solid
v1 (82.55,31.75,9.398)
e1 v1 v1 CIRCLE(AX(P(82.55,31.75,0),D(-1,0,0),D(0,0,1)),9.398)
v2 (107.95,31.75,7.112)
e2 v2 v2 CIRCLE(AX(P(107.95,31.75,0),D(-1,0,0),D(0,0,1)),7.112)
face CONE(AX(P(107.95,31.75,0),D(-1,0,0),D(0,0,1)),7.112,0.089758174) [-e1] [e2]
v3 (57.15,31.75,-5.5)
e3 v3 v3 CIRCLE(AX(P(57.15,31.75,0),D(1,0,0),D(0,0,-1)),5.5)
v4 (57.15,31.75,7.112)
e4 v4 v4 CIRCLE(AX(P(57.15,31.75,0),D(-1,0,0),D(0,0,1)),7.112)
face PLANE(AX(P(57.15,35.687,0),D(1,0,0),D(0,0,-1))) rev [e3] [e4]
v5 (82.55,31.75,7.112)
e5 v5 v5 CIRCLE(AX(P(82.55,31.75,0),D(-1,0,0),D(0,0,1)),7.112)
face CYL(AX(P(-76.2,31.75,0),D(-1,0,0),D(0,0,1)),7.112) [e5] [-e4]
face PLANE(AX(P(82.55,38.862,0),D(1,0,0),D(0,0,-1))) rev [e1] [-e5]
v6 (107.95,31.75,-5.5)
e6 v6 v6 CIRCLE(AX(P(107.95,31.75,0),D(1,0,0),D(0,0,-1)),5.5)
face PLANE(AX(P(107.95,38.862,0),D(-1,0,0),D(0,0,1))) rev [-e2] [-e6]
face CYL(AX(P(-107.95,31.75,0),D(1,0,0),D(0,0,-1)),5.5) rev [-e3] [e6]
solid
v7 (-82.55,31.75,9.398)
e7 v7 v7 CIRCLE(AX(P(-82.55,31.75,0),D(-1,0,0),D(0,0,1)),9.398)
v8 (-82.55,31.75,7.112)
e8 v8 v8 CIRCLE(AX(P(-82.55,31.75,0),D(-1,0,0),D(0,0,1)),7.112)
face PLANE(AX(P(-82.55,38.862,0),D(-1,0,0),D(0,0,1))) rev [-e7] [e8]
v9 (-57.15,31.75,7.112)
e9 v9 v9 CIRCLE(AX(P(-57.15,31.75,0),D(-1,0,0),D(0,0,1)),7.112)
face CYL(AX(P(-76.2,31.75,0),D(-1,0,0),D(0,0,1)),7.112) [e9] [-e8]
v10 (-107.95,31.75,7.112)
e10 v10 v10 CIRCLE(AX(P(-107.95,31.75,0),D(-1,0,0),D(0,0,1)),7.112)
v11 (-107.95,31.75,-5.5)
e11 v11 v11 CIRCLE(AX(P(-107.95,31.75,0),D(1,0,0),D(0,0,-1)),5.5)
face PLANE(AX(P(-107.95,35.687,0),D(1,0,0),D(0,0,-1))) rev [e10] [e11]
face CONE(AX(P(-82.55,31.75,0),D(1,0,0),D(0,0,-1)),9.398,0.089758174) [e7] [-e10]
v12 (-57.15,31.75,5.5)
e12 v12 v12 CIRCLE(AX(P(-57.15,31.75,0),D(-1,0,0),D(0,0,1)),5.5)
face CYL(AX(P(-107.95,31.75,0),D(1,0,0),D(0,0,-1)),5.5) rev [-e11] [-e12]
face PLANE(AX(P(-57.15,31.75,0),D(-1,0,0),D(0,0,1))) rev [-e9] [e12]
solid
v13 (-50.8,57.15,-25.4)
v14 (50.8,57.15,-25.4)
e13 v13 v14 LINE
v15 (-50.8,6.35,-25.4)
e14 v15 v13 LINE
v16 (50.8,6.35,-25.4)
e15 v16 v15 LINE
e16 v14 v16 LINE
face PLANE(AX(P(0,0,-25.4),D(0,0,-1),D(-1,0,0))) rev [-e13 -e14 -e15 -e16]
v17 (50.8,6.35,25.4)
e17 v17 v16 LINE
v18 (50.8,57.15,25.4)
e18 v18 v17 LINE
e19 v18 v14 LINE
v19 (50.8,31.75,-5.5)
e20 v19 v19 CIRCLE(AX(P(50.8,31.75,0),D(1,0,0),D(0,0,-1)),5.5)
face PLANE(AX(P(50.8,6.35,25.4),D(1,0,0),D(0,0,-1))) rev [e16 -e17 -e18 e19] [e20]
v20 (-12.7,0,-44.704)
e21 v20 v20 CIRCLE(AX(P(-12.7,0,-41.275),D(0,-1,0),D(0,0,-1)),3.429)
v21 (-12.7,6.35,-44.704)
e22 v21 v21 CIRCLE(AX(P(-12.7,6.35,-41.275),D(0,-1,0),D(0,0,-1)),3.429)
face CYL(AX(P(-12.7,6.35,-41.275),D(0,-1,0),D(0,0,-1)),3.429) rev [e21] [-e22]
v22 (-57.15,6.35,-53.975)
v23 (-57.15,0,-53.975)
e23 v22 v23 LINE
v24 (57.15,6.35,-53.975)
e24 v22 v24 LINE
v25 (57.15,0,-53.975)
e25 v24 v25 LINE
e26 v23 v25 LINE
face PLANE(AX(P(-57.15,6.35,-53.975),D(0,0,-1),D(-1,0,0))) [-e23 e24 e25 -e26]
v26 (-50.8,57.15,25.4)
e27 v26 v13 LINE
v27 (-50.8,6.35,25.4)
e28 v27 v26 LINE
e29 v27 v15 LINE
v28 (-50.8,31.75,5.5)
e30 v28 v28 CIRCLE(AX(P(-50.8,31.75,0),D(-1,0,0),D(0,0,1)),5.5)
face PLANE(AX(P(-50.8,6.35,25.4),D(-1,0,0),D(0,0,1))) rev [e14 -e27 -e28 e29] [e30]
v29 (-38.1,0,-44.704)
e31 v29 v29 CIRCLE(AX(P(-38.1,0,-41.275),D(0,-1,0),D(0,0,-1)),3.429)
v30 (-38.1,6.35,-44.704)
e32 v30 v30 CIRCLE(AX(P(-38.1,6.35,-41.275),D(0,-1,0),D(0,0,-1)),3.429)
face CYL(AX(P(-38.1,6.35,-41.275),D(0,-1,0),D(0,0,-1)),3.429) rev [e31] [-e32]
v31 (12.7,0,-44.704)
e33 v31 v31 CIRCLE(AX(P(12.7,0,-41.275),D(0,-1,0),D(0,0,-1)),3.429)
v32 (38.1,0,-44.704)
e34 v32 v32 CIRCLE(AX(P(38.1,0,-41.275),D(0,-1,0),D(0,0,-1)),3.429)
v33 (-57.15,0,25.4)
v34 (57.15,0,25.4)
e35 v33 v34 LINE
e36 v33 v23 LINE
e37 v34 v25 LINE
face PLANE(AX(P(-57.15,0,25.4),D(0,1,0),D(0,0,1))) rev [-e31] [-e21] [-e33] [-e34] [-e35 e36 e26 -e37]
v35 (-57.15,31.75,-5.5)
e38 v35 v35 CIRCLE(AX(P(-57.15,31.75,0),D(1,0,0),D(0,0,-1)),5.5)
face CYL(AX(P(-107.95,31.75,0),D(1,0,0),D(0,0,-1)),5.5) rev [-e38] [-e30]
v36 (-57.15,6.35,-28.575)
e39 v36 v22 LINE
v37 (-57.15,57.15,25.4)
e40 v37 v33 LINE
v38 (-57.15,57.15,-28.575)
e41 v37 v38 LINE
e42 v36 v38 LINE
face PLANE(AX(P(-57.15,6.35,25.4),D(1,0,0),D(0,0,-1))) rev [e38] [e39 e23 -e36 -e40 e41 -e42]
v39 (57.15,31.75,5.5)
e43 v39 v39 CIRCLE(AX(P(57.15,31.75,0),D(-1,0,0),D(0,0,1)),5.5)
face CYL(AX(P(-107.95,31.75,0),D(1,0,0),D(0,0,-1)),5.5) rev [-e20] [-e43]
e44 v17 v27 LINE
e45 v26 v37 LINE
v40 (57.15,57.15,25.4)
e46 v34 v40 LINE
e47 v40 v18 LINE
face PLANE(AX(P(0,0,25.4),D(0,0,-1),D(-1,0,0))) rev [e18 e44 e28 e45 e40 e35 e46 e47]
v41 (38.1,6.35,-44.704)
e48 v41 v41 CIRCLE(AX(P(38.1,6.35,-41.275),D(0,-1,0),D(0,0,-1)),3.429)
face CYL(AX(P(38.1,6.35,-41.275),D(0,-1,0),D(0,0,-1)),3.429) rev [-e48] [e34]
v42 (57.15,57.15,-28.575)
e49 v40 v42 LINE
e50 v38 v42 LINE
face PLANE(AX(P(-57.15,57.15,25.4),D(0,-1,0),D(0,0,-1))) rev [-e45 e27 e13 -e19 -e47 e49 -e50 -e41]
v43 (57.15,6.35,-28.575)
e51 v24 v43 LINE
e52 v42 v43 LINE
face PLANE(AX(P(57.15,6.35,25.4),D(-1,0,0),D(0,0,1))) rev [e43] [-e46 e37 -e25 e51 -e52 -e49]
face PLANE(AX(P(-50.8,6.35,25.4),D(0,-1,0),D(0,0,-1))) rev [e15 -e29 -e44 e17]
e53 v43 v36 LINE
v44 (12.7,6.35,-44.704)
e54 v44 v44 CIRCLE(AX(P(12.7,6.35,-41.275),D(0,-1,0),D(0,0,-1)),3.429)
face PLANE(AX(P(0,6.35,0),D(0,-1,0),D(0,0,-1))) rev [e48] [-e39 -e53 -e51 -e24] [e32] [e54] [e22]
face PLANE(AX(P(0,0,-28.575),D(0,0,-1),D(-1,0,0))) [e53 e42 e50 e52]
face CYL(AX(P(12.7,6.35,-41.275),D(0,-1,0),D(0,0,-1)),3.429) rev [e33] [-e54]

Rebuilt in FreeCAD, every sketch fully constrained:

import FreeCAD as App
import Part
import Sketcher
from FreeCAD import Vector
Q = App.Units.Quantity

doc = App.newDocument("Part")
body = doc.addObject("PartDesign::Body", "Body")

# Sketch on XY plane
sketch1 = body.newObject("Sketcher::SketchObject", "Sketch")
sketch1.AttachmentSupport = (doc.getObject("XY_Plane"), [""])
sketch1.MapMode = "FlatFace"
sketch1.addGeometry(Part.LineSegment(Vector(-57, 0, 0), Vector(57, 0, 0)), False)
sketch1.addGeometry(Part.LineSegment(Vector(57, 0, 0), Vector(57, 57, 0)), False)
sketch1.addGeometry(Part.LineSegment(Vector(57, 57, 0), Vector(51, 57, 0)), False)
sketch1.addGeometry(Part.LineSegment(Vector(51, 57, 0), Vector(51, 6, 0)), False)
sketch1.addGeometry(Part.LineSegment(Vector(51, 6, 0), Vector(-51, 6, 0)), False)
sketch1.addGeometry(Part.LineSegment(Vector(-51, 6, 0), Vector(-51, 57, 0)), False)
sketch1.addGeometry(Part.LineSegment(Vector(-51, 57, 0), Vector(-57, 57, 0)), False)
sketch1.addGeometry(Part.LineSegment(Vector(-57, 57, 0), Vector(-57, 0, 0)), False)
sketch1.addConstraint(Sketcher.Constraint("Coincident", 0, 2, 1, 1))
sketch1.addConstraint(Sketcher.Constraint("Coincident", 1, 2, 2, 1))
sketch1.addConstraint(Sketcher.Constraint("Coincident", 2, 2, 3, 1))
sketch1.addConstraint(Sketcher.Constraint("Coincident", 3, 2, 4, 1))
sketch1.addConstraint(Sketcher.Constraint("Coincident", 4, 2, 5, 1))
sketch1.addConstraint(Sketcher.Constraint("Coincident", 5, 2, 6, 1))
sketch1.addConstraint(Sketcher.Constraint("Coincident", 6, 2, 7, 1))
sketch1.addConstraint(Sketcher.Constraint("Coincident", 7, 2, 0, 1))
sketch1.addConstraint(Sketcher.Constraint("Horizontal", 0))
sketch1.addConstraint(Sketcher.Constraint("Vertical", 1))
sketch1.addConstraint(Sketcher.Constraint("Horizontal", 2))
sketch1.addConstraint(Sketcher.Constraint("Vertical", 3))
sketch1.addConstraint(Sketcher.Constraint("Horizontal", 4))
sketch1.addConstraint(Sketcher.Constraint("Vertical", 5))
sketch1.addConstraint(Sketcher.Constraint("Horizontal", 6))
sketch1.addConstraint(Sketcher.Constraint("Vertical", 7))
sketch1.addConstraint(Sketcher.Constraint("Symmetric", 0, 2, 7, 2, -1, 1))
sketch1.addConstraint(Sketcher.Constraint("Symmetric", 2, 2, 5, 2, -2))
sketch1.addConstraint(Sketcher.Constraint("DistanceX", 4, 2, 4, 1, Q("4 in")))
sketch1.addConstraint(Sketcher.Constraint("DistanceY", 3, 2, 3, 1, Q("2 in")))
sketch1.addConstraint(Sketcher.Constraint("DistanceX", 0, 1, 0, 2, Q("4.5 in")))
sketch1.addConstraint(Sketcher.Constraint("DistanceY", 1, 1, 1, 2, Q("2.25 in")))
pad1 = body.newObject("PartDesign::Pad", "Pad")
pad1.Profile = sketch1
pad1.Length = Q("2 in")
pad1.Midplane = True

# Sketch on XY plane
sketch2 = body.newObject("Sketcher::SketchObject", "Sketch001")
sketch2.AttachmentSupport = (doc.getObject("XY_Plane"), [""])
sketch2.MapMode = "FlatFace"
sketch2.AttachmentOffset = App.Placement(Vector(0, 0, -1 * 25.4), App.Rotation())
sketch2.addGeometry(Part.LineSegment(Vector(57, 57, 0), Vector(57, 0, 0)), False)
sketch2.addGeometry(Part.LineSegment(Vector(57, 0, 0), Vector(-57, 0, 0)), False)
sketch2.addGeometry(Part.LineSegment(Vector(-57, 0, 0), Vector(-57, 57, 0)), False)
sketch2.addGeometry(Part.LineSegment(Vector(-57, 57, 0), Vector(57, 57, 0)), False)
sketch2.addConstraint(Sketcher.Constraint("Coincident", 0, 2, 1, 1))
sketch2.addConstraint(Sketcher.Constraint("Coincident", 1, 2, 2, 1))
sketch2.addConstraint(Sketcher.Constraint("Coincident", 2, 2, 3, 1))
sketch2.addConstraint(Sketcher.Constraint("Coincident", 3, 2, 0, 1))
sketch2.addConstraint(Sketcher.Constraint("Vertical", 0))
sketch2.addConstraint(Sketcher.Constraint("Horizontal", 1))
sketch2.addConstraint(Sketcher.Constraint("Vertical", 2))
sketch2.addConstraint(Sketcher.Constraint("Horizontal", 3))
sketch2.addConstraint(Sketcher.Constraint("Symmetric", 0, 2, 1, 2, -1, 1))
sketch2.addConstraint(Sketcher.Constraint("DistanceX", 1, 2, 1, 1, Q("4.5 in")))
sketch2.addConstraint(Sketcher.Constraint("DistanceY", 0, 2, 0, 1, Q("2.25 in")))
pad2 = body.newObject("PartDesign::Pad", "Pad001")
pad2.Profile = sketch2
pad2.Length = Q("0.125 in")
pad2.Reversed = True
body2 = doc.addObject("PartDesign::Body", "Body001")
body2.AllowCompound = True

# Sketch on XY plane
sketch3 = body2.newObject("Sketcher::SketchObject", "Sketch002")
sketch3.AttachmentSupport = (doc.getObject("XY_Plane001"), [""])
sketch3.MapMode = "FlatFace"
sketch3.addGeometry(Part.LineSegment(Vector(57.1, 38.9, 0), Vector(57.1, 35.7, 0)), False)
sketch3.addGeometry(Part.LineSegment(Vector(57.1, 35.7, 0), Vector(108, 35.7, 0)), False)
sketch3.addGeometry(Part.LineSegment(Vector(108, 35.7, 0), Vector(108, 38.9, 0)), False)
sketch3.addGeometry(Part.LineSegment(Vector(108, 38.9, 0), Vector(82.5, 41.1, 0)), False)
sketch3.addGeometry(Part.LineSegment(Vector(82.5, 41.1, 0), Vector(82.5, 38.9, 0)), False)
sketch3.addGeometry(Part.LineSegment(Vector(82.5, 38.9, 0), Vector(57.1, 38.9, 0)), False)
sketch3.addGeometry(Part.LineSegment(Vector(-57.1, 38.9, 0), Vector(-82.5, 38.9, 0)), False)
sketch3.addGeometry(Part.LineSegment(Vector(-82.5, 38.9, 0), Vector(-82.5, 41.1, 0)), False)
sketch3.addGeometry(Part.LineSegment(Vector(-82.5, 41.1, 0), Vector(-108, 38.9, 0)), False)
sketch3.addGeometry(Part.LineSegment(Vector(-108, 38.9, 0), Vector(-108, 31.8, 0)), False)
sketch3.addGeometry(Part.LineSegment(Vector(-108, 31.8, 0), Vector(-57.1, 31.8, 0)), False)
sketch3.addGeometry(Part.LineSegment(Vector(-57.1, 31.8, 0), Vector(-57.1, 38.9, 0)), False)
sketch3.addGeometry(Part.LineSegment(Vector(-108, 31.8, 0), Vector(108, 31.8, 0)), True)  # axis
sketch3.addConstraint(Sketcher.Constraint("Coincident", 0, 2, 1, 1))
sketch3.addConstraint(Sketcher.Constraint("Coincident", 1, 2, 2, 1))
sketch3.addConstraint(Sketcher.Constraint("Coincident", 2, 2, 3, 1))
sketch3.addConstraint(Sketcher.Constraint("Coincident", 3, 2, 4, 1))
sketch3.addConstraint(Sketcher.Constraint("Coincident", 4, 2, 5, 1))
sketch3.addConstraint(Sketcher.Constraint("Coincident", 5, 2, 0, 1))
sketch3.addConstraint(Sketcher.Constraint("Coincident", 6, 2, 7, 1))
sketch3.addConstraint(Sketcher.Constraint("Coincident", 7, 2, 8, 1))
sketch3.addConstraint(Sketcher.Constraint("Coincident", 8, 2, 9, 1))
sketch3.addConstraint(Sketcher.Constraint("Coincident", 9, 2, 10, 1))
sketch3.addConstraint(Sketcher.Constraint("Coincident", 10, 2, 11, 1))
sketch3.addConstraint(Sketcher.Constraint("Coincident", 11, 2, 6, 1))
sketch3.addConstraint(Sketcher.Constraint("Vertical", 0))
sketch3.addConstraint(Sketcher.Constraint("Horizontal", 1))
sketch3.addConstraint(Sketcher.Constraint("Vertical", 2))
sketch3.addConstraint(Sketcher.Constraint("Vertical", 4))
sketch3.addConstraint(Sketcher.Constraint("Horizontal", 5))
sketch3.addConstraint(Sketcher.Constraint("Horizontal", 6))
sketch3.addConstraint(Sketcher.Constraint("Vertical", 7))
sketch3.addConstraint(Sketcher.Constraint("Vertical", 9))
sketch3.addConstraint(Sketcher.Constraint("Horizontal", 10))
sketch3.addConstraint(Sketcher.Constraint("Vertical", 11))
sketch3.addConstraint(Sketcher.Constraint("Horizontal", 12))
sketch3.addConstraint(Sketcher.Constraint("Coincident", 12, 1, 9, 2))
sketch3.addConstraint(Sketcher.Constraint("Symmetric", 4, 2, 6, 2, -2))
sketch3.addConstraint(Sketcher.Constraint("Symmetric", 2, 2, 8, 2, -2))
sketch3.addConstraint(Sketcher.Constraint("Horizontal", 2, 2, 4, 2))
sketch3.addConstraint(Sketcher.Constraint("Horizontal", 3, 2, 7, 2))
sketch3.addConstraint(Sketcher.Constraint("Vertical", 2, 2, 12, 2))
sketch3.addConstraint(Sketcher.Constraint("Equal", 5, 6))
sketch3.addConstraint(Sketcher.Constraint("DistanceX", 1, 1, 1, 2, Q("2 in")))
sketch3.addConstraint(Sketcher.Constraint("DistanceX", 5, 2, 5, 1, Q("1 in")))
sketch3.addConstraint(Sketcher.Constraint("DistanceX", 12, 1, 12, 2, Q("8.5 in")))
sketch3.addConstraint(Sketcher.Constraint("DistanceY", 4, 2, 4, 1, Q("0.09 in")))
sketch3.addConstraint(Sketcher.Constraint("DistanceY", 9, 2, 9, 1, Q("0.28 in")))
sketch3.addConstraint(Sketcher.Constraint("DistanceY", 0, 2, 0, 1, Q("0.125 in")))
sketch3.addConstraint(Sketcher.Constraint("DistanceY", -1, 1, 2, 2, Q("1.53 in")))
revolution = body2.newObject("PartDesign::Revolution", "Revolution")
revolution.Profile = sketch3
revolution.ReferenceAxis = (sketch3, ["Axis0"])
revolution.Angle = 360
body3 = doc.addObject("PartDesign::Body", "Body002")

# Sketch on YZ plane
sketch4 = body3.newObject("Sketcher::SketchObject", "Sketch003")
sketch4.AttachmentSupport = (doc.getObject("YZ_Plane002"), [""])
sketch4.MapMode = "FlatFace"
sketch4.addGeometry(Part.Circle(Vector(32, 0, 0), Vector(0, 0, 1), 6), False)
sketch4.addConstraint(Sketcher.Constraint("PointOnObject", 0, 3, -1))
sketch4.addConstraint(Sketcher.Constraint("Diameter", 0, Q("11 mm")))
sketch4.addConstraint(Sketcher.Constraint("DistanceX", -1, 1, 0, 3, Q("1.25 in")))
pad3 = body3.newObject("PartDesign::Pad", "Pad002")
pad3.Profile = sketch4
pad3.Type = "TwoLengths"
pad3.Length = 126.442639
pad3.Length2 = 126.442639
doc.recompute()

body4 = doc.addObject("PartDesign::Body", "Body003")
body4.BaseFeature = body3
boolean = body.newObject("PartDesign::Boolean", "Boolean")
boolean.Type = "Cut"
boolean.addObjects([body4])
doc.recompute()

# Sketch on XZ plane
sketch5 = body.newObject("Sketcher::SketchObject", "Sketch004")
sketch5.AttachmentSupport = (doc.getObject("XZ_Plane"), [""])
sketch5.MapMode = "FlatFace"
sketch5.addGeometry(Part.LineSegment(Vector(57.1, -54, 0), Vector(57.1, -28.6, 0)), False)
sketch5.addGeometry(Part.LineSegment(Vector(57.1, -28.6, 0), Vector(-57.1, -28.6, 0)), False)
sketch5.addGeometry(Part.LineSegment(Vector(-57.1, -28.6, 0), Vector(-57.1, -54, 0)), False)
sketch5.addGeometry(Part.LineSegment(Vector(-57.1, -54, 0), Vector(57.1, -54, 0)), False)
sketch5.addGeometry(Part.Circle(Vector(38.1, -41.3, 0), Vector(0, 0, 1), 3.4), False)
sketch5.addGeometry(Part.Circle(Vector(12.7, -41.3, 0), Vector(0, 0, 1), 3.4), False)
sketch5.addGeometry(Part.Circle(Vector(-12.7, -41.3, 0), Vector(0, 0, 1), 3.4), False)
sketch5.addGeometry(Part.Circle(Vector(-38.1, -41.3, 0), Vector(0, 0, 1), 3.4), False)
sketch5.addConstraint(Sketcher.Constraint("Coincident", 0, 2, 1, 1))
sketch5.addConstraint(Sketcher.Constraint("Coincident", 1, 2, 2, 1))
sketch5.addConstraint(Sketcher.Constraint("Coincident", 2, 2, 3, 1))
sketch5.addConstraint(Sketcher.Constraint("Coincident", 3, 2, 0, 1))
sketch5.addConstraint(Sketcher.Constraint("Vertical", 0))
sketch5.addConstraint(Sketcher.Constraint("Horizontal", 1))
sketch5.addConstraint(Sketcher.Constraint("Vertical", 2))
sketch5.addConstraint(Sketcher.Constraint("Horizontal", 3))
sketch5.addConstraint(Sketcher.Constraint("Equal", 4, 5))
sketch5.addConstraint(Sketcher.Constraint("Equal", 5, 6))
sketch5.addConstraint(Sketcher.Constraint("Equal", 6, 7))
sketch5.addConstraint(Sketcher.Constraint("Symmetric", 5, 3, 6, 3, -2))
sketch5.addConstraint(Sketcher.Constraint("Symmetric", 4, 3, 7, 3, -2))
sketch5.addConstraint(Sketcher.Constraint("Horizontal", 4, 3, 5, 3))
sketch5.addConstraint(Sketcher.Constraint("Diameter", 4, Q("0.27 in")))
sketch5.addConstraint(Sketcher.Constraint("DistanceY", 0, 1, 0, 2, Q("1 in")))
sketch5.addConstraint(Sketcher.Constraint("DistanceX", 1, 2, 1, 1, Q("4.5 in")))
sketch5.addConstraint(Sketcher.Constraint("DistanceX", 5, 3, 4, 3, Q("1 in")))
sketch5.addConstraint(Sketcher.Constraint("DistanceX", 6, 3, 5, 3, Q("1 in")))
sketch5.addConstraint(Sketcher.Constraint("DistanceY", 4, 3, 0, 2, Q("0.5 in")))
sketch5.addConstraint(Sketcher.Constraint("DistanceX", -1, 1, 0, 2, Q("2.25 in")))
sketch5.addConstraint(Sketcher.Constraint("DistanceY", 4, 3, -1, 1, Q("1.625 in")))
pad4 = body.newObject("PartDesign::Pad", "Pad003")
pad4.Profile = sketch5
pad4.Length = Q("0.25 in")
pad4.Reversed = True
body2.AllowCompound = True
doc.recompute()

boolean2 = body2.newObject("PartDesign::Boolean", "Boolean001")
boolean2.Type = "Cut"
boolean2.addObjects([body3])

doc.recompute()
